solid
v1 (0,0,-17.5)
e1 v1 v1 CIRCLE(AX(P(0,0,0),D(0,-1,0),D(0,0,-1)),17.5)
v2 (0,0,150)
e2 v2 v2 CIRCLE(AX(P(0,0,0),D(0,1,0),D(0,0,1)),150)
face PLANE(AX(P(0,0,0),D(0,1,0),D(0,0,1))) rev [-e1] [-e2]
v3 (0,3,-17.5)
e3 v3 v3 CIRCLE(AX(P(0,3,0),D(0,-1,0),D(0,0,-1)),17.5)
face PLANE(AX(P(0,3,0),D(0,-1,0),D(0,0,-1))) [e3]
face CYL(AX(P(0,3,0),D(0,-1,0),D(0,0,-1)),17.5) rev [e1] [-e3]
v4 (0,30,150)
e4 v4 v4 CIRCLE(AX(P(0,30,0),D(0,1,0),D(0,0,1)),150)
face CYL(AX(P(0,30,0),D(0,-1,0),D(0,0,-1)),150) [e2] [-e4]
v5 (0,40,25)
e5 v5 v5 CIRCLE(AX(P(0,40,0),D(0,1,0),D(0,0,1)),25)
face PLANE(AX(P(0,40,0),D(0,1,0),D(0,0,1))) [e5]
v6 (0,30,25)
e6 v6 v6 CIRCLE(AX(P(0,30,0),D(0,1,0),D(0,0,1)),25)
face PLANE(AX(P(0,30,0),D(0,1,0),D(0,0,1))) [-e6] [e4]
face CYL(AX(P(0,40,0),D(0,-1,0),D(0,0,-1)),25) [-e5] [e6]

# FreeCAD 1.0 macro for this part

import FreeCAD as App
import Part
import Sketcher
from FreeCAD import Vector

doc = App.newDocument("Part")
body = doc.addObject("PartDesign::Body", "Body")

# Sketch on XZ plane
sketch1 = doc.addObject("Sketcher::SketchObject", "Sketch")
body.addObject(sketch1)
sketch1.AttachmentSupport = (doc.XZ_Plane, [""])
sketch1.MapMode = "FlatFace"
sketch1.addGeometry(Part.Circle(Vector(0, 0, 0), Vector(0, 0, 1), 150), False)
sketch1.addConstraint([
    Sketcher.Constraint("Coincident", 0, 3, -1, 1),
    Sketcher.Constraint("Diameter", 0, 300.0),
])
pad1 = doc.addObject("PartDesign::Pad", "Pad")
body.addObject(pad1)
pad1.Profile = sketch1
pad1.Length = 30
pad1.Reversed = True

# Sketch on XZ plane
sketch2 = doc.addObject("Sketcher::SketchObject", "Sketch001")
body.addObject(sketch2)
sketch2.AttachmentSupport = (doc.XZ_Plane, [""])
sketch2.MapMode = "FlatFace"
sketch2.AttachmentOffset = App.Placement(Vector(0, 0, -30), App.Rotation())
sketch2.addGeometry(Part.Circle(Vector(0, 0, 0), Vector(0, 0, 1), 25), False)
sketch2.addConstraint([
    Sketcher.Constraint("Coincident", 0, 3, -1, 1),
    Sketcher.Constraint("Diameter", 0, 50.0),
])
pad2 = doc.addObject("PartDesign::Pad", "Pad001")
body.addObject(pad2)
pad2.Profile = sketch2
pad2.Length = 10
pad2.Reversed = True

# Sketch on XZ plane
sketch3 = doc.addObject("Sketcher::SketchObject", "Sketch002")
body.addObject(sketch3)
sketch3.AttachmentSupport = (doc.XZ_Plane, [""])
sketch3.MapMode = "FlatFace"
sketch3.addGeometry(Part.Circle(Vector(0, 0, 0), Vector(0, 0, 1), 17.5), False)
sketch3.addConstraint([
    Sketcher.Constraint("Coincident", 0, 3, -1, 1),
    Sketcher.Constraint("Diameter", 0, 35.0),
])
pocket1 = doc.addObject("PartDesign::Pocket", "Pocket")
body.addObject(pocket1)
pocket1.Profile = sketch3
pocket1.Length = 3

doc.recompute()
